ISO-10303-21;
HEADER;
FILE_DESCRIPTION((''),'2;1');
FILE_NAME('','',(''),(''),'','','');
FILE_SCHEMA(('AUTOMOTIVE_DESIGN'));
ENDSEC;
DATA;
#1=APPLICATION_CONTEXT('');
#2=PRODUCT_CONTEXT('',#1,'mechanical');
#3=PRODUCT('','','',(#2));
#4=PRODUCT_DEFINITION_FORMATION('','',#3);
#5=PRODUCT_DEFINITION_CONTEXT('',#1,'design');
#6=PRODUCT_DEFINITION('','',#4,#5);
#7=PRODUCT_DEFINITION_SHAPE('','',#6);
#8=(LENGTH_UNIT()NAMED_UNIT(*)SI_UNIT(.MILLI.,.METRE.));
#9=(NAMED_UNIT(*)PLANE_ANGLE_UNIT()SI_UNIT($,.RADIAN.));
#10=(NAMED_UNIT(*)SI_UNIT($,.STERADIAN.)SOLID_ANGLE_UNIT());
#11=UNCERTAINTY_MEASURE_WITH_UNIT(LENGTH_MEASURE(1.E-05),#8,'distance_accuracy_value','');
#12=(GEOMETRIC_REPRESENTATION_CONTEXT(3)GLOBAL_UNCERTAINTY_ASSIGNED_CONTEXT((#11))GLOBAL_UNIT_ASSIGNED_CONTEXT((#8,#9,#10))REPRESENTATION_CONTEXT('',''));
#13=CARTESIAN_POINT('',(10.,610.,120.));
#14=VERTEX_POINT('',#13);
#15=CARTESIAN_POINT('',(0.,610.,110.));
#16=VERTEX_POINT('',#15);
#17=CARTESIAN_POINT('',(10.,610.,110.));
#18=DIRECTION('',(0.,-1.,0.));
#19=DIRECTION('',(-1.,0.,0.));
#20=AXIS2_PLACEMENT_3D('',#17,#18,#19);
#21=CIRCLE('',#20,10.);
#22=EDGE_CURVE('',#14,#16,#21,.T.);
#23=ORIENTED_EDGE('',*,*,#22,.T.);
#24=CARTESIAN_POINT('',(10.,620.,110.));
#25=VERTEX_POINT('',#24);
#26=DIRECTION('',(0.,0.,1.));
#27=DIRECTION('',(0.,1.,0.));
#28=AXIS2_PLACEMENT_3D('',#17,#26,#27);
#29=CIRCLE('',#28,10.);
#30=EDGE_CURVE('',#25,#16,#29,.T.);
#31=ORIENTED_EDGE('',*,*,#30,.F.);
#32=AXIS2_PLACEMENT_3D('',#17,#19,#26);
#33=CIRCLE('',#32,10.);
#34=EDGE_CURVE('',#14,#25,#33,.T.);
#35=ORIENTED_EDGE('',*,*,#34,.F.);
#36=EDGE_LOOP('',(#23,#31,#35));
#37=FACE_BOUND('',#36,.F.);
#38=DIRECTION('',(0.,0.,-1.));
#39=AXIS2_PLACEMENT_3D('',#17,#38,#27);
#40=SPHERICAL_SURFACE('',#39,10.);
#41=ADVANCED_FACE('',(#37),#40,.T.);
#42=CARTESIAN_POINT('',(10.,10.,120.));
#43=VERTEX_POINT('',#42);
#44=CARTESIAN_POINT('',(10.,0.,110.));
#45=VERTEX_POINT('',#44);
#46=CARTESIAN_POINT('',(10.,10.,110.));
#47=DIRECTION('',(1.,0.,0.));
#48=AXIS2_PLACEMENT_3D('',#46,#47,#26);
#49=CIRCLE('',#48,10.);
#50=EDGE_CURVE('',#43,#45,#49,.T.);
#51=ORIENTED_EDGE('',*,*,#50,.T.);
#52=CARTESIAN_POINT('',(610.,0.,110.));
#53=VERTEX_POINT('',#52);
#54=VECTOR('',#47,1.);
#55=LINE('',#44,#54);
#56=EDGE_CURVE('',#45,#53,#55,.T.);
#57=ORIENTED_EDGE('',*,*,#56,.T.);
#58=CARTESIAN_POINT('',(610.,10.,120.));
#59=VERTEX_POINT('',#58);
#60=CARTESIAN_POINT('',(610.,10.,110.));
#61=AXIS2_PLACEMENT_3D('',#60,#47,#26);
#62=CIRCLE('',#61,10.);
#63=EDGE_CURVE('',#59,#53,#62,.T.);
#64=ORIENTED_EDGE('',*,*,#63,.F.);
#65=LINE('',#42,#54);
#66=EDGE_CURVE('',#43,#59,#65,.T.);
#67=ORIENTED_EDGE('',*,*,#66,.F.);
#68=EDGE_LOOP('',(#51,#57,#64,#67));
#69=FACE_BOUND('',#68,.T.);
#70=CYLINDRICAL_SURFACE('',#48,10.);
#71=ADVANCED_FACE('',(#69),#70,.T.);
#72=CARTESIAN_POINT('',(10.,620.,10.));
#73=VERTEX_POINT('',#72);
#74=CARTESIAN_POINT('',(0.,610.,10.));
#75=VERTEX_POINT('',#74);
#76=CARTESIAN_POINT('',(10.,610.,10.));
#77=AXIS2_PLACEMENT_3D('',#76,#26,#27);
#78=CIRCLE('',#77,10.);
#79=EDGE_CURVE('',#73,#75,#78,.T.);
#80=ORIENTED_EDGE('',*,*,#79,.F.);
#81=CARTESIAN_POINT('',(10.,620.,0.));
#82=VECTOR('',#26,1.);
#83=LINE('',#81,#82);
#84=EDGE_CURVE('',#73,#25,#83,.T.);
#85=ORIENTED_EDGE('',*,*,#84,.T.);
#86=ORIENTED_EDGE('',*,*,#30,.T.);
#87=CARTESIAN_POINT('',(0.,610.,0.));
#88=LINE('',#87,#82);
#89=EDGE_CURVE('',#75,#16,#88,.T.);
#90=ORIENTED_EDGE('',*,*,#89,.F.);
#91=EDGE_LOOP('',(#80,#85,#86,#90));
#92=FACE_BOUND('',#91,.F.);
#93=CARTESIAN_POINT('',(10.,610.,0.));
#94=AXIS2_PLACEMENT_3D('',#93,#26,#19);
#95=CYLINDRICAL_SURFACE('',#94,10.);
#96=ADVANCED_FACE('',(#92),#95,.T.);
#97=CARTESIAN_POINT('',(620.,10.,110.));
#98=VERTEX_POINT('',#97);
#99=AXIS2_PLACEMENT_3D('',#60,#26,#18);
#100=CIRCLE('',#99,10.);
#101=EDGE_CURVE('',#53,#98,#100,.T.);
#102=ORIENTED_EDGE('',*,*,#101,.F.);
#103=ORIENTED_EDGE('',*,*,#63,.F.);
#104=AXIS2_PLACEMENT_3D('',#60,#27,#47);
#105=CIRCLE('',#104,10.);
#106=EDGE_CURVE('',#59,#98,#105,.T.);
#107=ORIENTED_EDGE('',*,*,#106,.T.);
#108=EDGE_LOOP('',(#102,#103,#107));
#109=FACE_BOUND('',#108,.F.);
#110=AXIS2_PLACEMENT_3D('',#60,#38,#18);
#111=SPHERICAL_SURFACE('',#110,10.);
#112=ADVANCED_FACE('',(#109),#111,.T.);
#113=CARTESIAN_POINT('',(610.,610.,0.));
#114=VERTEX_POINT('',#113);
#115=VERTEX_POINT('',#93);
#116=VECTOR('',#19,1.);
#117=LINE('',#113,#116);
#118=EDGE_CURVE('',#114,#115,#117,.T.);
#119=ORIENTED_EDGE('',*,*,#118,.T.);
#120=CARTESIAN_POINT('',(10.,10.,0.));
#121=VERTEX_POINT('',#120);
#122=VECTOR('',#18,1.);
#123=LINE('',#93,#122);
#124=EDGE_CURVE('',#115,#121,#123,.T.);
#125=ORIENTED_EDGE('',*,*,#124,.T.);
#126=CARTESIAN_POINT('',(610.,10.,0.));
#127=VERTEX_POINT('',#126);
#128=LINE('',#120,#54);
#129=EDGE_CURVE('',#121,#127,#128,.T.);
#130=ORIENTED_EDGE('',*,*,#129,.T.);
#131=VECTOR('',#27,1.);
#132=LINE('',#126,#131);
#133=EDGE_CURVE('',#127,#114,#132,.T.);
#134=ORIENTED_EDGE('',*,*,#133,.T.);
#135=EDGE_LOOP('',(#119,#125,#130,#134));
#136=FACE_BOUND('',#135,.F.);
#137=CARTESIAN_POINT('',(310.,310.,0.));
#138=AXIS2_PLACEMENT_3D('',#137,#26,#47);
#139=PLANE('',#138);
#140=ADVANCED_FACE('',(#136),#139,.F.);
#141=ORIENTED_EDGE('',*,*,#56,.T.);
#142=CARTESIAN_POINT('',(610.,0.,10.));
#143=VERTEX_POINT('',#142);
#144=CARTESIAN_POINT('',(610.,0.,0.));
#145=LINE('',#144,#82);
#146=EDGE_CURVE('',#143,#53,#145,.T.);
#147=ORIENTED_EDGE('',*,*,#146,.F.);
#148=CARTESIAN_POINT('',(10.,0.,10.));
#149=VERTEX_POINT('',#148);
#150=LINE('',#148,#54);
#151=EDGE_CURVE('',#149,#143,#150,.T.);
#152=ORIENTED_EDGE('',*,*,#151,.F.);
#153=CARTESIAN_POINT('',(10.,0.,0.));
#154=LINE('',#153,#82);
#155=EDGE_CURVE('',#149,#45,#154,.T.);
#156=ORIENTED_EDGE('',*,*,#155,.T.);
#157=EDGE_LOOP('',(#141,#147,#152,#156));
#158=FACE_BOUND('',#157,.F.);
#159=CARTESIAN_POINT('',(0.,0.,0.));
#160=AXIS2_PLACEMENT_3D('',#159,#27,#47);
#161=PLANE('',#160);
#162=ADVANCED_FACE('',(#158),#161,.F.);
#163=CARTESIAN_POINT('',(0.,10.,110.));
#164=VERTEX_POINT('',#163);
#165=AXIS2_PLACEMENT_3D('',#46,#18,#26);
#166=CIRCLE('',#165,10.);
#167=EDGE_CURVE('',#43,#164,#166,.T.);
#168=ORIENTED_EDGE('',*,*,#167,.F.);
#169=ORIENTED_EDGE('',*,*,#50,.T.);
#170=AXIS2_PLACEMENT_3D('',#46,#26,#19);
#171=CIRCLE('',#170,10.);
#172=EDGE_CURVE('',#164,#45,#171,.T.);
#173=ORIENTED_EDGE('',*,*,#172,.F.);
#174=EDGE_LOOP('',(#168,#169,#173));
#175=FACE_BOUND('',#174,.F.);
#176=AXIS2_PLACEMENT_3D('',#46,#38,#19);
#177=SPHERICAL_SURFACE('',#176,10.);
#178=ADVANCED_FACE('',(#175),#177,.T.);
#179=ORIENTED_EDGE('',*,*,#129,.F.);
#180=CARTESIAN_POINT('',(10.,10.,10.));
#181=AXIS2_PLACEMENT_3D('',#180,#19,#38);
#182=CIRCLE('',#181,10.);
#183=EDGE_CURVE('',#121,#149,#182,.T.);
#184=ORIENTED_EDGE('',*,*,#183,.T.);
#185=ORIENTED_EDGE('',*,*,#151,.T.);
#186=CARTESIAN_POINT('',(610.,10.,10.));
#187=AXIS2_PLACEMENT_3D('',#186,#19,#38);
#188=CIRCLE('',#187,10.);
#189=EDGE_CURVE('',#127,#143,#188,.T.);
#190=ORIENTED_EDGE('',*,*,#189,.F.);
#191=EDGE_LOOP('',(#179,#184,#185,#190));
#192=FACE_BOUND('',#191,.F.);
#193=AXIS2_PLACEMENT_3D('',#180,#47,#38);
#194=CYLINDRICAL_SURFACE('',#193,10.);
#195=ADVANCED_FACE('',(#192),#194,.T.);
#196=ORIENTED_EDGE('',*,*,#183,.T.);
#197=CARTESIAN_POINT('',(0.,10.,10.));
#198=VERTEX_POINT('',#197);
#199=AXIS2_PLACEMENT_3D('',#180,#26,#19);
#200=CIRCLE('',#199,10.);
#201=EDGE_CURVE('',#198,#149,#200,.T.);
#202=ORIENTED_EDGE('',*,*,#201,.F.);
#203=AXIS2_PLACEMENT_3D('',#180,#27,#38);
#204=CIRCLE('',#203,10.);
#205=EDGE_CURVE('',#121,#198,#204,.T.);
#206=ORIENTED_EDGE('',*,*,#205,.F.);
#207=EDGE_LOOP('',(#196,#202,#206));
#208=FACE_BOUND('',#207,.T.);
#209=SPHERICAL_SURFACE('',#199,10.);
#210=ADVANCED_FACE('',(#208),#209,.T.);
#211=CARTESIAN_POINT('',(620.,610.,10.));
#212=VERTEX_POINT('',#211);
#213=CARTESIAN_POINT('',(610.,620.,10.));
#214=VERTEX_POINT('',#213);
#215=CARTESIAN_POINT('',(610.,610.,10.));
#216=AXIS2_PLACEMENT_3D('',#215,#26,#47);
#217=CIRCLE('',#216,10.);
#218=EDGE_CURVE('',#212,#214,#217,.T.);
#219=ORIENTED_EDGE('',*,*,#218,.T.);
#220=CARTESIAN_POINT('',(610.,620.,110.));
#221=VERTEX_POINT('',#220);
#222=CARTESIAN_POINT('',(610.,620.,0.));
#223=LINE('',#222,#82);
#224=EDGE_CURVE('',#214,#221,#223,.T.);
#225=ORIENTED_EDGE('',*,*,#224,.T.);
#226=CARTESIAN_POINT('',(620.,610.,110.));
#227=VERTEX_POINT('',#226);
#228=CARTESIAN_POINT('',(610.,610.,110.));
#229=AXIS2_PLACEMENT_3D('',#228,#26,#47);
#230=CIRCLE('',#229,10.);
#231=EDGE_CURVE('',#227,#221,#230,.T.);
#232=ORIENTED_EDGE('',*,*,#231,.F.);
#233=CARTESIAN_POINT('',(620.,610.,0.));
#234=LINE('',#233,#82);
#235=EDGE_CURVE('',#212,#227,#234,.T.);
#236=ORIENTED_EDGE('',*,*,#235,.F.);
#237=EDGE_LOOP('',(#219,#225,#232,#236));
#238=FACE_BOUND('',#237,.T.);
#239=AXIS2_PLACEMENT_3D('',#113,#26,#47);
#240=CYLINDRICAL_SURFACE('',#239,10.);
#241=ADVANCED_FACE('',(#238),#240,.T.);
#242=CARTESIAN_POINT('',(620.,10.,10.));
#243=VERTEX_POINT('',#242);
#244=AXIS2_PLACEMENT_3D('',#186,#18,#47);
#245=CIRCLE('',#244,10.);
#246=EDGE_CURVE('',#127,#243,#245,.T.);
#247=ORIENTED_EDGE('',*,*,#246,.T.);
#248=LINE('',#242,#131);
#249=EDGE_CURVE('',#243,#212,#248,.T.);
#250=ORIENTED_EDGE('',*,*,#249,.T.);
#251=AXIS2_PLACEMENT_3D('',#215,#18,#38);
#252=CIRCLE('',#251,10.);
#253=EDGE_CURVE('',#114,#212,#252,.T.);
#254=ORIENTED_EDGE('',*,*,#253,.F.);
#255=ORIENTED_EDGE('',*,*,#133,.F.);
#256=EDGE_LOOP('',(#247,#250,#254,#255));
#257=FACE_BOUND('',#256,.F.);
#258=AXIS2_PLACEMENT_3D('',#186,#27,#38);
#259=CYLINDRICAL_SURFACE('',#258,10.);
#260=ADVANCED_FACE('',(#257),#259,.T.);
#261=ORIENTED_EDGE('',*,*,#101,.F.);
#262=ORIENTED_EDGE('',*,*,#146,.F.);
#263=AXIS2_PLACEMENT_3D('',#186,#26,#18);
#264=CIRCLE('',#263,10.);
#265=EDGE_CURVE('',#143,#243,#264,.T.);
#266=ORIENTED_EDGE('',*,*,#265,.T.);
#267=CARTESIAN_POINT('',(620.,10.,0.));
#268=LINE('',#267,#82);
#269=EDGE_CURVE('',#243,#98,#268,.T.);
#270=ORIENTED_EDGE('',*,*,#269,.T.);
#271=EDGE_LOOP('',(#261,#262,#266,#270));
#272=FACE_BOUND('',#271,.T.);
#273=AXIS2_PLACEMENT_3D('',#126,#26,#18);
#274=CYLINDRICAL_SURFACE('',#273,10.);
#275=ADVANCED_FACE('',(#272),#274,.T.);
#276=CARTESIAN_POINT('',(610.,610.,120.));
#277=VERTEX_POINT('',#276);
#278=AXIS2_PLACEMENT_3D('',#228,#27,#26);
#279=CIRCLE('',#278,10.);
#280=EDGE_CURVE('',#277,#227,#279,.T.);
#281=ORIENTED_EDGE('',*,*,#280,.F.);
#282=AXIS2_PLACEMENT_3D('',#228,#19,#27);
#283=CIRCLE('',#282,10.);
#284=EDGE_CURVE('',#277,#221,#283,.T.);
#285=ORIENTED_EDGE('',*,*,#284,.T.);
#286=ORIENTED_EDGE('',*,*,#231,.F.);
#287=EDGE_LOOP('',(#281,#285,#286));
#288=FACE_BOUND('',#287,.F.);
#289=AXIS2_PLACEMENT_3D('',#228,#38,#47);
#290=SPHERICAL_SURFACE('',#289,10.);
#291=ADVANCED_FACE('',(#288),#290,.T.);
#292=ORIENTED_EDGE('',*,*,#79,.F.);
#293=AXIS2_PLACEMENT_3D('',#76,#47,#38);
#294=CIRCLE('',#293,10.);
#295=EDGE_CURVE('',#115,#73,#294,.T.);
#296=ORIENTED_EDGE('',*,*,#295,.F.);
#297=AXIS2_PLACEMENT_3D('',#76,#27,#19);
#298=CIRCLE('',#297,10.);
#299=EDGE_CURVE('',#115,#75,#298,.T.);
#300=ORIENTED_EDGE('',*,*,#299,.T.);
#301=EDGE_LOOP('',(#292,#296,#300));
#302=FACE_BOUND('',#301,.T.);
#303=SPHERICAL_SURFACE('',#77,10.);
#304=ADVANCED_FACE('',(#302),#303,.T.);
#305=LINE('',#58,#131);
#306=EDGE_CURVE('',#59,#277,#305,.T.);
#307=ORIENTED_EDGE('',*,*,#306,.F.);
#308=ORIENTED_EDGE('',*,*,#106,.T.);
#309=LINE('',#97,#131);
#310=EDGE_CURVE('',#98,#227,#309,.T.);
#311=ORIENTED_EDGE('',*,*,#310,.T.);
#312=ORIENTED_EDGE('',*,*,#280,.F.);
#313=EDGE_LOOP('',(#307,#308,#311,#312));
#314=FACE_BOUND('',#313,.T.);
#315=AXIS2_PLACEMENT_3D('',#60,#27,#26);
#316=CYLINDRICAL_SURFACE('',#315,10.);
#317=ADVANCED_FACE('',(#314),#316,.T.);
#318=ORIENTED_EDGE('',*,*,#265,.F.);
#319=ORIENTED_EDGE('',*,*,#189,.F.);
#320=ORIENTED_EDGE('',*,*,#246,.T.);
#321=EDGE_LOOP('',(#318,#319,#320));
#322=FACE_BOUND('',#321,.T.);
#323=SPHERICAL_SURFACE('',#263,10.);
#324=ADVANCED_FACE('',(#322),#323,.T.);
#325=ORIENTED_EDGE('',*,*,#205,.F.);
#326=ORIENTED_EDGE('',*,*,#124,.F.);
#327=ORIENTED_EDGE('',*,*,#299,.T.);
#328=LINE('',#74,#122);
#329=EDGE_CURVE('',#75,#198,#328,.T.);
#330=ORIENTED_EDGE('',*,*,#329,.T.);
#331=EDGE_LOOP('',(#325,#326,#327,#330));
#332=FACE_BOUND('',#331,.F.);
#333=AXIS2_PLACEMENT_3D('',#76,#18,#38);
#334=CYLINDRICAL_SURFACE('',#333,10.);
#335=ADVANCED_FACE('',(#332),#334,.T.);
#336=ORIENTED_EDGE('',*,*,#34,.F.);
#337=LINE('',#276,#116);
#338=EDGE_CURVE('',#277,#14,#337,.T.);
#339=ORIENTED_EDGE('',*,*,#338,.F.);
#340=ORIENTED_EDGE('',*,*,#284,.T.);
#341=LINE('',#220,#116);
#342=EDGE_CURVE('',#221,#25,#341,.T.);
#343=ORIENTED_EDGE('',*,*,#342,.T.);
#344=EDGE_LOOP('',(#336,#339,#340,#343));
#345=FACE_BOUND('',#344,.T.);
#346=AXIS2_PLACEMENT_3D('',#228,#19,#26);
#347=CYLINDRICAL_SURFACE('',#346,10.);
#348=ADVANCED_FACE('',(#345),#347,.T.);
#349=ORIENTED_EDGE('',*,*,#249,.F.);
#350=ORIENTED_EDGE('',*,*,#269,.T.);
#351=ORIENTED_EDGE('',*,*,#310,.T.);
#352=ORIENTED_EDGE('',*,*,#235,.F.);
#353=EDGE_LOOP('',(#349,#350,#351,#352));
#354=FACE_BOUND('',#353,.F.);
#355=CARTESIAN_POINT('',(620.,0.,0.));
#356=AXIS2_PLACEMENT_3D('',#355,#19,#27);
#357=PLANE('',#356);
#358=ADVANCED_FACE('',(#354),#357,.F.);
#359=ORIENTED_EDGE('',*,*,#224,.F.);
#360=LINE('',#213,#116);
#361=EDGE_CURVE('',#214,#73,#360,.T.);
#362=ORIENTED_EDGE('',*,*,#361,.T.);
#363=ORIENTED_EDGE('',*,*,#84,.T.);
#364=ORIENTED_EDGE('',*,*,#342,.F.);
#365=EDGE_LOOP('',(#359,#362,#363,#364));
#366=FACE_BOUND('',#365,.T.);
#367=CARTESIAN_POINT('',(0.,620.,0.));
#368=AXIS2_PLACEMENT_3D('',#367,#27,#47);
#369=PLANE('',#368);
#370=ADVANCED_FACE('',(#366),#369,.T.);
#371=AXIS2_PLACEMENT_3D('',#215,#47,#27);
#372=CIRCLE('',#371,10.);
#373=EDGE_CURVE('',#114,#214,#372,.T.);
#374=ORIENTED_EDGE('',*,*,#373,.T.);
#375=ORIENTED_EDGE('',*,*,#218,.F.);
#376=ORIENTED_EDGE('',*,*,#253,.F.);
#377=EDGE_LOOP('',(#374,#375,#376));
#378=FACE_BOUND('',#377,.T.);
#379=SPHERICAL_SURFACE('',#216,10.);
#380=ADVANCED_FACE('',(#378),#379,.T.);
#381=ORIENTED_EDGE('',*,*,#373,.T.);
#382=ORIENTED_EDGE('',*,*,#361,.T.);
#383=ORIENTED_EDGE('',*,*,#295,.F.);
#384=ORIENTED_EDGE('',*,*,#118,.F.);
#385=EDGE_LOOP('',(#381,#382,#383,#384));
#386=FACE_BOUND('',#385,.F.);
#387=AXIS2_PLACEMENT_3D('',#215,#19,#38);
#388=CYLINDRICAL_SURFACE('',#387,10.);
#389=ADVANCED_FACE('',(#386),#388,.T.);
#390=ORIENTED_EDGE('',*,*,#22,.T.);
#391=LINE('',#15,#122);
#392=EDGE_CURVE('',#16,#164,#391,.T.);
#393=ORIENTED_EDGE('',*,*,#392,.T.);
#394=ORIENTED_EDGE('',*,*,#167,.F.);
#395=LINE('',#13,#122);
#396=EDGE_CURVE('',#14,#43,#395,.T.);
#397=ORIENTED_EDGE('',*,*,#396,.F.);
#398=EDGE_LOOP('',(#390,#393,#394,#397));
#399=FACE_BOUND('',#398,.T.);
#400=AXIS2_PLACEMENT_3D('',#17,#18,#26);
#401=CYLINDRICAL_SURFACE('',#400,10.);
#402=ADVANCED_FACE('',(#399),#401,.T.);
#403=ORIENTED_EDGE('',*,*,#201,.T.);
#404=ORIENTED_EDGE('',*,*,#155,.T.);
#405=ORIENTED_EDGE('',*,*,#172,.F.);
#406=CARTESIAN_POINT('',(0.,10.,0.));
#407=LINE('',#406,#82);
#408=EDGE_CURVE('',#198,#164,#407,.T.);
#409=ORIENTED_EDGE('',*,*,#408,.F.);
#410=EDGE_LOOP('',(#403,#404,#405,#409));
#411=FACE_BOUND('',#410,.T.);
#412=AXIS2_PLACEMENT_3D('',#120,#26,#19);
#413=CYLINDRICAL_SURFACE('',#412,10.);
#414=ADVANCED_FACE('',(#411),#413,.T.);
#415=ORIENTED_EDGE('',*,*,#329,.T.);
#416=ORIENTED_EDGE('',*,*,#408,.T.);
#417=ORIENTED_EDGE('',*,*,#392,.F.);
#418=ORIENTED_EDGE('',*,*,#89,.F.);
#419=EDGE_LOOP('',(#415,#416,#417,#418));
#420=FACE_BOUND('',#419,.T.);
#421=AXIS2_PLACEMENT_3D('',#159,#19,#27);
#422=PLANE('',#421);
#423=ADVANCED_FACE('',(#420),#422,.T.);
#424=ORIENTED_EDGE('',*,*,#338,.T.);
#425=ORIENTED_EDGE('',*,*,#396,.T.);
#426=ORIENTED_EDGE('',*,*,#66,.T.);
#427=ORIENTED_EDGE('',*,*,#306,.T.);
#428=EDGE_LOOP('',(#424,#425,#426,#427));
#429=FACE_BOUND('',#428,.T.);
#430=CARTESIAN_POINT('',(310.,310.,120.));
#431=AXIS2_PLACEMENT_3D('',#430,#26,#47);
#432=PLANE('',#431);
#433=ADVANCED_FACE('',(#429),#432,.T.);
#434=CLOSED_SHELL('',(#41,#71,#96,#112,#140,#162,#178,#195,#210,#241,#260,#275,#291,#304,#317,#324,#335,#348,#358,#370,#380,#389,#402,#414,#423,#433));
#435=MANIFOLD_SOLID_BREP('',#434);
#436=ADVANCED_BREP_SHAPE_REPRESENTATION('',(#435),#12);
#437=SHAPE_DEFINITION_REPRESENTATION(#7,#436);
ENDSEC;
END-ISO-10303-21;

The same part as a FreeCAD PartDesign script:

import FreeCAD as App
import Part
import Sketcher
from FreeCAD import Vector
Q = App.Units.Quantity


def edges_at(feature, points):
    """Names of the edges that pass closest to the given points."""
    edges = feature.Shape.Edges
    near = lambda p: min(range(len(edges)), key=lambda i: edges[i].distToShape(Part.Vertex(*p))[0])
    return sorted({f"Edge{near(p) + 1}" for p in points})

doc = App.newDocument("Part")
body = doc.addObject("PartDesign::Body", "Body")

sketch1 = body.newObject("Sketcher::SketchObject", "Sketch")
sketch1.AttachmentSupport = (doc.getObject("XY_Plane"), [""])
sketch1.MapMode = "FlatFace"
sketch1.addGeometry([
    Part.LineSegment(Vector(0, 620, 0), Vector(0, 0, 0)),
    Part.LineSegment(Vector(0, 0, 0), Vector(620, 0, 0)),
    Part.LineSegment(Vector(620, 0, 0), Vector(620, 620, 0)),
    Part.LineSegment(Vector(620, 620, 0), Vector(0, 620, 0)),
], False)
sketch1.addConstraint([
    Sketcher.Constraint("Coincident", 0, 2, 1, 1),
    Sketcher.Constraint("Coincident", 1, 2, 2, 1),
    Sketcher.Constraint("Coincident", 2, 2, 3, 1),
    Sketcher.Constraint("Coincident", 3, 2, 0, 1),
    Sketcher.Constraint("Vertical", 0),
    Sketcher.Constraint("Horizontal", 1),
    Sketcher.Constraint("Vertical", 2),
    Sketcher.Constraint("Horizontal", 3),
    Sketcher.Constraint("Coincident", 0, 2, -1, 1),
    Sketcher.Constraint("Equal", 3, 0),
    Sketcher.Constraint("DistanceX", 1, 1, 1, 2, Q("620 mm")),
])
pad1 = body.newObject("PartDesign::Pad", "Pad")
pad1.Profile = sketch1
pad1.Length = 120
doc.recompute()

fillet = body.newObject("PartDesign::Fillet", "Fillet")
fillet.Base = (pad1, edges_at(pad1, [
    (620, 0, 60),
    (620, 620, 60),
    (0, 0, 60),
    (0, 620, 60),
]))
fillet.Radius = 10
doc.recompute()

fillet2 = body.newObject("PartDesign::Fillet", "Fillet001")
fillet2.Base = (fillet, edges_at(fillet, [(310, 0, 120), (310, 0, 0)]))
fillet2.Radius = 10

doc.recompute()
